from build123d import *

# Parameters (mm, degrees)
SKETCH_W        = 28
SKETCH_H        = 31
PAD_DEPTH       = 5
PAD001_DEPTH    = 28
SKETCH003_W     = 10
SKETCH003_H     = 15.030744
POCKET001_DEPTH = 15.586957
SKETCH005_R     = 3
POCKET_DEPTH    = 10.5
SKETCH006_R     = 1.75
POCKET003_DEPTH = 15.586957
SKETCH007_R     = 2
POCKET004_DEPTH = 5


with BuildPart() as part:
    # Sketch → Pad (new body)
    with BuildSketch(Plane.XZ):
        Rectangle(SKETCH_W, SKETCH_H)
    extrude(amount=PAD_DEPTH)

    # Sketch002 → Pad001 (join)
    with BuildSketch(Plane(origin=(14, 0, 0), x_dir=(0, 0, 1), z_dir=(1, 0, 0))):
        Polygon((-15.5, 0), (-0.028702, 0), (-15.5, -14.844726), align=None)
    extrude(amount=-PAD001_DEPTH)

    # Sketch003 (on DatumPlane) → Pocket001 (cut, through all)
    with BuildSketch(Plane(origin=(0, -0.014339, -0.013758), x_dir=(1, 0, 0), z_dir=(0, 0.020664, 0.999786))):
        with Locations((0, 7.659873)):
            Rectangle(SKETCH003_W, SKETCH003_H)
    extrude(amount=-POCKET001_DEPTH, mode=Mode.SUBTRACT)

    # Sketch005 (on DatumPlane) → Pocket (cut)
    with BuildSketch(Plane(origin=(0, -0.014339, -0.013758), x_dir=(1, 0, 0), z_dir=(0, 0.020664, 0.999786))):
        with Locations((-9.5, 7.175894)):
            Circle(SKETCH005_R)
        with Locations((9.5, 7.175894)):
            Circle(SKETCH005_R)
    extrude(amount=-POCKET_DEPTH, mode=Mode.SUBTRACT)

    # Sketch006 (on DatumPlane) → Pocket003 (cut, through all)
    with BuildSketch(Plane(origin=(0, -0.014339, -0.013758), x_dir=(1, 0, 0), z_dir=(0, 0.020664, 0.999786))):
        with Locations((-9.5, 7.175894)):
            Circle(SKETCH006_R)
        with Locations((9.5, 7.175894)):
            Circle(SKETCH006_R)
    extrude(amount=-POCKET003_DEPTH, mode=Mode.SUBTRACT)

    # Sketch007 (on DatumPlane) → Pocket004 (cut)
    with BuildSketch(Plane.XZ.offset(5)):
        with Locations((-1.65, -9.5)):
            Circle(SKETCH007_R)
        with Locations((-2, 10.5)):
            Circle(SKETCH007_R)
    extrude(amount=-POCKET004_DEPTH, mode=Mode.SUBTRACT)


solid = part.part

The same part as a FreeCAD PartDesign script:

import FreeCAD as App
import Part
import Sketcher
Q = App.Units.Quantity


def add_polygon(sketch, points):
    """Adds a closed chain of lines whose ends are joined by coincident constraints."""
    first, n = sketch.GeometryCount, len(points)
    for a, b in zip(points, points[1:] + points[:1]):
        sketch.addGeometry(Part.LineSegment(App.Vector(*a, 0), App.Vector(*b, 0)), False)
    for i in range(n):
        sketch.addConstraint(Sketcher.Constraint("Coincident", first + i, 2, first + (i + 1) % n, 1))

doc = App.newDocument("Part")
body = doc.addObject("PartDesign::Body", "Body")

sketch1 = doc.addObject("Sketcher::SketchObject", "Sketch")
body.addObject(sketch1)
sketch1.AttachmentSupport = (doc.XZ_Plane, [""])
sketch1.MapMode = "FlatFace"
add_polygon(sketch1, [(-14, 16), (-14, -16), (14, -16), (14, 16)])
sketch1.addConstraint(Sketcher.Constraint("Vertical", 0))
sketch1.addConstraint(Sketcher.Constraint("Horizontal", 1))
sketch1.addConstraint(Sketcher.Constraint("Vertical", 2))
sketch1.addConstraint(Sketcher.Constraint("Horizontal", 3))
sketch1.addConstraint(Sketcher.Constraint("Symmetric", 0, 2, 2, 2, -1, 1))
sketch1.addConstraint(Sketcher.Constraint("DistanceX", 1, 1, 1, 2, Q("28 mm")))
sketch1.addConstraint(Sketcher.Constraint("DistanceY", 0, 2, 0, 1, Q("31 mm")))
pad1 = doc.addObject("PartDesign::Pad", "Pad")
body.addObject(pad1)
pad1.Profile = sketch1
pad1.Length = 5

sketch2 = doc.addObject("Sketcher::SketchObject", "Sketch001")
body.addObject(sketch2)
sketch2.AttachmentSupport = (doc.YZ_Plane, [""])
sketch2.MapMode = "FlatFace"
sketch2.AttachmentOffset = App.Placement(App.Vector(0, 0, 14), App.Rotation())
add_polygon(sketch2, [(0, 0), (0, -16), (15, -16)])
sketch2.addConstraint(Sketcher.Constraint("Vertical", 0))
sketch2.addConstraint(Sketcher.Constraint("Horizontal", 1))
sketch2.addConstraint(Sketcher.Constraint("PointOnObject", 0, 2, -2))
sketch2.addConstraint(Sketcher.Constraint("DistanceY", 0, 2, -1, 1, Q("15.5 mm")))
sketch2.addConstraint(Sketcher.Constraint("DistanceY", 0, 2, 0, 1, Q("15.471298 mm")))
sketch2.addConstraint(Sketcher.Constraint("DistanceX", 1, 1, 1, 2, Q("14.844726 mm")))
pad2 = doc.addObject("PartDesign::Pad", "Pad001")
body.addObject(pad2)
pad2.Profile = sketch2
pad2.Length = 28
pad2.Reversed = True

sketch3 = doc.addObject("Sketcher::SketchObject", "Sketch002")
body.addObject(sketch3)
sketch3.Placement = App.Placement(App.Vector(0, -0.014339, -0.013758), App.Rotation(App.Vector(1, 0, 0), App.Vector(0, 0.999786477, -0.02066401), App.Vector(0, 0.02066401, 0.999786477), "ZXY"))
add_polygon(sketch3, [(-5, 15), (-5, 0), (5, 0), (5, 15)])
sketch3.addConstraint(Sketcher.Constraint("Vertical", 0))
sketch3.addConstraint(Sketcher.Constraint("Horizontal", 1))
sketch3.addConstraint(Sketcher.Constraint("Vertical", 2))
sketch3.addConstraint(Sketcher.Constraint("Horizontal", 3))
sketch3.addConstraint(Sketcher.Constraint("DistanceX", 1, 1, 1, 2, Q("10 mm")))
sketch3.addConstraint(Sketcher.Constraint("DistanceX", 0, 2, -1, 1, Q("5 mm")))
sketch3.addConstraint(Sketcher.Constraint("DistanceY", -1, 1, 0, 2, Q("0.144501 mm")))
sketch3.addConstraint(Sketcher.Constraint("DistanceY", 0, 2, 0, 1, Q("15.030744 mm")))
pocket1 = doc.addObject("PartDesign::Pocket", "Pocket")
body.addObject(pocket1)
pocket1.Profile = sketch3
pocket1.Type = "ThroughAll"

sketch4 = doc.addObject("Sketcher::SketchObject", "Sketch003")
body.addObject(sketch4)
sketch4.Placement = App.Placement(App.Vector(0, -0.014339, -0.013758), App.Rotation(App.Vector(1, 0, 0), App.Vector(0, 0.999786477, -0.02066401), App.Vector(0, 0.02066401, 0.999786477), "ZXY"))
sketch4.addGeometry(Part.Circle(App.Vector(-9.5, 7.2, 0), App.Vector(0, 0, 1), 3), False)
sketch4.addGeometry(Part.Circle(App.Vector(9.5, 7.2, 0), App.Vector(0, 0, 1), 3), False)
sketch4.addConstraint(Sketcher.Constraint("Equal", 0, 1))
sketch4.addConstraint(Sketcher.Constraint("Symmetric", 0, 3, 1, 3, -2))
sketch4.addConstraint(Sketcher.Constraint("Diameter", 0, Q("6 mm")))
sketch4.addConstraint(Sketcher.Constraint("DistanceX", 0, 3, 1, 3, Q("19 mm")))
sketch4.addConstraint(Sketcher.Constraint("DistanceY", -1, 1, 0, 3, Q("7.175894 mm")))
pocket2 = doc.addObject("PartDesign::Pocket", "Pocket001")
body.addObject(pocket2)
pocket2.Profile = sketch4
pocket2.Length = 10.5

sketch5 = doc.addObject("Sketcher::SketchObject", "Sketch004")
body.addObject(sketch5)
sketch5.Placement = App.Placement(App.Vector(0, -0.014339, -0.013758), App.Rotation(App.Vector(1, 0, 0), App.Vector(0, 0.999786477, -0.02066401), App.Vector(0, 0.02066401, 0.999786477), "ZXY"))
sketch5.addGeometry(Part.Circle(App.Vector(-9.5, 7.2, 0), App.Vector(0, 0, 1), 1.8), False)
sketch5.addGeometry(Part.Circle(App.Vector(9.5, 7.2, 0), App.Vector(0, 0, 1), 1.8), False)
sketch5.addConstraint(Sketcher.Constraint("Equal", 0, 1))
sketch5.addConstraint(Sketcher.Constraint("Symmetric", 0, 3, 1, 3, -2))
sketch5.addConstraint(Sketcher.Constraint("Diameter", 0, Q("3.5 mm")))
sketch5.addConstraint(Sketcher.Constraint("DistanceX", 0, 3, 1, 3, Q("19 mm")))
sketch5.addConstraint(Sketcher.Constraint("DistanceY", -1, 1, 0, 3, Q("7.175894 mm")))
pocket3 = doc.addObject("PartDesign::Pocket", "Pocket002")
body.addObject(pocket3)
pocket3.Profile = sketch5
pocket3.Type = "ThroughAll"

sketch6 = doc.addObject("Sketcher::SketchObject", "Sketch005")
body.addObject(sketch6)
sketch6.AttachmentSupport = (doc.XZ_Plane, [""])
sketch6.MapMode = "FlatFace"
sketch6.AttachmentOffset = App.Placement(App.Vector(0, 0, 5), App.Rotation())
sketch6.addGeometry(Part.Circle(App.Vector(-1.6, -9.5, 0), App.Vector(0, 0, 1), 2), False)
sketch6.addGeometry(Part.Circle(App.Vector(-2, 10.5, 0), App.Vector(0, 0, 1), 2), False)
sketch6.addConstraint(Sketcher.Constraint("Equal", 0, 1))
sketch6.addConstraint(Sketcher.Constraint("Diameter", 0, Q("4 mm")))
sketch6.addConstraint(Sketcher.Constraint("DistanceX", 1, 3, -1, 1, Q("2 mm")))
sketch6.addConstraint(Sketcher.Constraint("DistanceY", 0, 3, 1, 3, Q("20 mm")))
sketch6.addConstraint(Sketcher.Constraint("DistanceY", 0, 3, -1, 1, Q("9.5 mm")))
sketch6.addConstraint(Sketcher.Constraint("DistanceX", 0, 3, -1, 1, Q("1.65 mm")))
pocket4 = doc.addObject("PartDesign::Pocket", "Pocket003")
body.addObject(pocket4)
pocket4.Profile = sketch6
pocket4.Length = 5

doc.recompute()
